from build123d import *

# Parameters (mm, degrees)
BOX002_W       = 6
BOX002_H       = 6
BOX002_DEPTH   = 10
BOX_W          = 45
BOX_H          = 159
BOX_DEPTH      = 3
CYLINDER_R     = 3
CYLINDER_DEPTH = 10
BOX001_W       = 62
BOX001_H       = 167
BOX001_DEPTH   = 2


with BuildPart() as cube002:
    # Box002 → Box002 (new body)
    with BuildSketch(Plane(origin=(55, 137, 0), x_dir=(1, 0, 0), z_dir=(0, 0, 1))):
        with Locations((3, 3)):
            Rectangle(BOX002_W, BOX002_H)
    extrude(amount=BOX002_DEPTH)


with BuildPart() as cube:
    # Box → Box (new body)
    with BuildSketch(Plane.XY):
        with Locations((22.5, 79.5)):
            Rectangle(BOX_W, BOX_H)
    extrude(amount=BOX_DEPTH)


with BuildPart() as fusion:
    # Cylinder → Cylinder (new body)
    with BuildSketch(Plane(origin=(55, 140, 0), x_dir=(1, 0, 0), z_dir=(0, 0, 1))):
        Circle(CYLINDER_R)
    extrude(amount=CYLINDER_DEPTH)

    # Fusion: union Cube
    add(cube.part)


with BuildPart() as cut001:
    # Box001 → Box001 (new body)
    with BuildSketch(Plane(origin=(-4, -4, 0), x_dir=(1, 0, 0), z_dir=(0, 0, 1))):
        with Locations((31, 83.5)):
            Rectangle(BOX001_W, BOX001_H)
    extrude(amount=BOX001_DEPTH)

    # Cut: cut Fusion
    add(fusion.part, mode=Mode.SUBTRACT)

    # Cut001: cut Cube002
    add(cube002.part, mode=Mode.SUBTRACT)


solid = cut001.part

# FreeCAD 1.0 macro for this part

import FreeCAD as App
import Part
import Sketcher

V = App.Vector

doc = App.newDocument("Part")
body = doc.addObject("PartDesign::Body", "Body")

# Sketch on XY plane
sketch1 = body.newObject("Sketcher::SketchObject", "Sketch")
sketch1.AttachmentSupport = (doc.getObject("XY_Plane"), [""])
sketch1.MapMode = "FlatFace"
sketch1.addGeometry(Part.LineSegment(V(55, 143, 0), V(55, 137, 0)), False)
sketch1.addGeometry(Part.LineSegment(V(55, 137, 0), V(61, 137, 0)), False)
sketch1.addGeometry(Part.LineSegment(V(61, 137, 0), V(61, 143, 0)), False)
sketch1.addGeometry(Part.LineSegment(V(61, 143, 0), V(55, 143, 0)), False)
sketch1.addConstraint(Sketcher.Constraint("Coincident", 0, 2, 1, 1))
sketch1.addConstraint(Sketcher.Constraint("Coincident", 1, 2, 2, 1))
sketch1.addConstraint(Sketcher.Constraint("Coincident", 2, 2, 3, 1))
sketch1.addConstraint(Sketcher.Constraint("Coincident", 3, 2, 0, 1))
sketch1.addConstraint(Sketcher.Constraint("Vertical", 0))
sketch1.addConstraint(Sketcher.Constraint("Horizontal", 1))
sketch1.addConstraint(Sketcher.Constraint("Vertical", 2))
sketch1.addConstraint(Sketcher.Constraint("Horizontal", 3))
sketch1.addConstraint(Sketcher.Constraint("Equal", 3, 0))
sketch1.addConstraint(Sketcher.Constraint("DistanceX", 1, 1, 1, 2, 6.0))
sketch1.addConstraint(Sketcher.Constraint("DistanceX", -1, 1, 0, 2, 55.0))
sketch1.addConstraint(Sketcher.Constraint("DistanceY", -1, 1, 0, 2, 137.0))
pad1 = body.newObject("PartDesign::Pad", "Pad")
pad1.Profile = sketch1
pad1.Length = 10
body2 = doc.addObject("PartDesign::Body", "Body001")

# Sketch on XY plane
sketch2 = body2.newObject("Sketcher::SketchObject", "Sketch001")
sketch2.AttachmentSupport = (doc.getObject("XY_Plane001"), [""])
sketch2.MapMode = "FlatFace"
sketch2.addGeometry(Part.LineSegment(V(0, 159, 0), V(0, 0, 0)), False)
sketch2.addGeometry(Part.LineSegment(V(0, 0, 0), V(45, 0, 0)), False)
sketch2.addGeometry(Part.LineSegment(V(45, 0, 0), V(45, 159, 0)), False)
sketch2.addGeometry(Part.LineSegment(V(45, 159, 0), V(0, 159, 0)), False)
sketch2.addConstraint(Sketcher.Constraint("Coincident", 0, 2, 1, 1))
sketch2.addConstraint(Sketcher.Constraint("Coincident", 1, 2, 2, 1))
sketch2.addConstraint(Sketcher.Constraint("Coincident", 2, 2, 3, 1))
sketch2.addConstraint(Sketcher.Constraint("Coincident", 3, 2, 0, 1))
sketch2.addConstraint(Sketcher.Constraint("Vertical", 0))
sketch2.addConstraint(Sketcher.Constraint("Horizontal", 1))
sketch2.addConstraint(Sketcher.Constraint("Vertical", 2))
sketch2.addConstraint(Sketcher.Constraint("Horizontal", 3))
sketch2.addConstraint(Sketcher.Constraint("Coincident", 0, 2, -1, 1))
sketch2.addConstraint(Sketcher.Constraint("DistanceX", 1, 1, 1, 2, 45.0))
sketch2.addConstraint(Sketcher.Constraint("DistanceY", 0, 2, 0, 1, 159.0))
pad2 = body2.newObject("PartDesign::Pad", "Pad001")
pad2.Profile = sketch2
pad2.Length = 3
body3 = doc.addObject("PartDesign::Body", "Body002")
body3.AllowCompound = True

# Sketch on XY plane
sketch3 = body3.newObject("Sketcher::SketchObject", "Sketch002")
sketch3.AttachmentSupport = (doc.getObject("XY_Plane002"), [""])
sketch3.MapMode = "FlatFace"
sketch3.addGeometry(Part.Circle(V(55, 140, 0), V(0, 0, 1), 3), False)
sketch3.addConstraint(Sketcher.Constraint("Diameter", 0, 6.0))
sketch3.addConstraint(Sketcher.Constraint("DistanceX", -1, 1, 0, 3, 55.0))
sketch3.addConstraint(Sketcher.Constraint("DistanceY", -1, 1, 0, 3, 140.0))
pad3 = body3.newObject("PartDesign::Pad", "Pad002")
pad3.Profile = sketch3
pad3.Length = 10
doc.recompute()

boolean = body3.newObject("PartDesign::Boolean", "Boolean")
boolean.Type = "Fuse"
boolean.addObjects([body2])
body4 = doc.addObject("PartDesign::Body", "Body003")

# Sketch on XY plane
sketch4 = body4.newObject("Sketcher::SketchObject", "Sketch003")
sketch4.AttachmentSupport = (doc.getObject("XY_Plane003"), [""])
sketch4.MapMode = "FlatFace"
sketch4.addGeometry(Part.LineSegment(V(-4, 163, 0), V(-4, -4, 0)), False)
sketch4.addGeometry(Part.LineSegment(V(-4, -4, 0), V(58, -4, 0)), False)
sketch4.addGeometry(Part.LineSegment(V(58, -4, 0), V(58, 163, 0)), False)
sketch4.addGeometry(Part.LineSegment(V(58, 163, 0), V(-4, 163, 0)), False)
sketch4.addConstraint(Sketcher.Constraint("Coincident", 0, 2, 1, 1))
sketch4.addConstraint(Sketcher.Constraint("Coincident", 1, 2, 2, 1))
sketch4.addConstraint(Sketcher.Constraint("Coincident", 2, 2, 3, 1))
sketch4.addConstraint(Sketcher.Constraint("Coincident", 3, 2, 0, 1))
sketch4.addConstraint(Sketcher.Constraint("Vertical", 0))
sketch4.addConstraint(Sketcher.Constraint("Horizontal", 1))
sketch4.addConstraint(Sketcher.Constraint("Vertical", 2))
sketch4.addConstraint(Sketcher.Constraint("Horizontal", 3))
sketch4.addConstraint(Sketcher.Constraint("DistanceX", 1, 1, 1, 2, 62.0))
sketch4.addConstraint(Sketcher.Constraint("DistanceY", 0, 2, 0, 1, 167.0))
sketch4.addConstraint(Sketcher.Constraint("DistanceX", 0, 2, -1, 1, 4.0))
sketch4.addConstraint(Sketcher.Constraint("DistanceY", 0, 2, -1, 1, 4.0))
pad4 = body4.newObject("PartDesign::Pad", "Pad003")
pad4.Profile = sketch4
pad4.Length = 2
doc.recompute()

boolean2 = body4.newObject("PartDesign::Boolean", "Boolean001")
boolean2.Type = "Cut"
boolean2.addObjects([body3])
doc.recompute()

boolean3 = body4.newObject("PartDesign::Boolean", "Boolean002")
boolean3.Type = "Cut"
boolean3.addObjects([body])

doc.recompute()
